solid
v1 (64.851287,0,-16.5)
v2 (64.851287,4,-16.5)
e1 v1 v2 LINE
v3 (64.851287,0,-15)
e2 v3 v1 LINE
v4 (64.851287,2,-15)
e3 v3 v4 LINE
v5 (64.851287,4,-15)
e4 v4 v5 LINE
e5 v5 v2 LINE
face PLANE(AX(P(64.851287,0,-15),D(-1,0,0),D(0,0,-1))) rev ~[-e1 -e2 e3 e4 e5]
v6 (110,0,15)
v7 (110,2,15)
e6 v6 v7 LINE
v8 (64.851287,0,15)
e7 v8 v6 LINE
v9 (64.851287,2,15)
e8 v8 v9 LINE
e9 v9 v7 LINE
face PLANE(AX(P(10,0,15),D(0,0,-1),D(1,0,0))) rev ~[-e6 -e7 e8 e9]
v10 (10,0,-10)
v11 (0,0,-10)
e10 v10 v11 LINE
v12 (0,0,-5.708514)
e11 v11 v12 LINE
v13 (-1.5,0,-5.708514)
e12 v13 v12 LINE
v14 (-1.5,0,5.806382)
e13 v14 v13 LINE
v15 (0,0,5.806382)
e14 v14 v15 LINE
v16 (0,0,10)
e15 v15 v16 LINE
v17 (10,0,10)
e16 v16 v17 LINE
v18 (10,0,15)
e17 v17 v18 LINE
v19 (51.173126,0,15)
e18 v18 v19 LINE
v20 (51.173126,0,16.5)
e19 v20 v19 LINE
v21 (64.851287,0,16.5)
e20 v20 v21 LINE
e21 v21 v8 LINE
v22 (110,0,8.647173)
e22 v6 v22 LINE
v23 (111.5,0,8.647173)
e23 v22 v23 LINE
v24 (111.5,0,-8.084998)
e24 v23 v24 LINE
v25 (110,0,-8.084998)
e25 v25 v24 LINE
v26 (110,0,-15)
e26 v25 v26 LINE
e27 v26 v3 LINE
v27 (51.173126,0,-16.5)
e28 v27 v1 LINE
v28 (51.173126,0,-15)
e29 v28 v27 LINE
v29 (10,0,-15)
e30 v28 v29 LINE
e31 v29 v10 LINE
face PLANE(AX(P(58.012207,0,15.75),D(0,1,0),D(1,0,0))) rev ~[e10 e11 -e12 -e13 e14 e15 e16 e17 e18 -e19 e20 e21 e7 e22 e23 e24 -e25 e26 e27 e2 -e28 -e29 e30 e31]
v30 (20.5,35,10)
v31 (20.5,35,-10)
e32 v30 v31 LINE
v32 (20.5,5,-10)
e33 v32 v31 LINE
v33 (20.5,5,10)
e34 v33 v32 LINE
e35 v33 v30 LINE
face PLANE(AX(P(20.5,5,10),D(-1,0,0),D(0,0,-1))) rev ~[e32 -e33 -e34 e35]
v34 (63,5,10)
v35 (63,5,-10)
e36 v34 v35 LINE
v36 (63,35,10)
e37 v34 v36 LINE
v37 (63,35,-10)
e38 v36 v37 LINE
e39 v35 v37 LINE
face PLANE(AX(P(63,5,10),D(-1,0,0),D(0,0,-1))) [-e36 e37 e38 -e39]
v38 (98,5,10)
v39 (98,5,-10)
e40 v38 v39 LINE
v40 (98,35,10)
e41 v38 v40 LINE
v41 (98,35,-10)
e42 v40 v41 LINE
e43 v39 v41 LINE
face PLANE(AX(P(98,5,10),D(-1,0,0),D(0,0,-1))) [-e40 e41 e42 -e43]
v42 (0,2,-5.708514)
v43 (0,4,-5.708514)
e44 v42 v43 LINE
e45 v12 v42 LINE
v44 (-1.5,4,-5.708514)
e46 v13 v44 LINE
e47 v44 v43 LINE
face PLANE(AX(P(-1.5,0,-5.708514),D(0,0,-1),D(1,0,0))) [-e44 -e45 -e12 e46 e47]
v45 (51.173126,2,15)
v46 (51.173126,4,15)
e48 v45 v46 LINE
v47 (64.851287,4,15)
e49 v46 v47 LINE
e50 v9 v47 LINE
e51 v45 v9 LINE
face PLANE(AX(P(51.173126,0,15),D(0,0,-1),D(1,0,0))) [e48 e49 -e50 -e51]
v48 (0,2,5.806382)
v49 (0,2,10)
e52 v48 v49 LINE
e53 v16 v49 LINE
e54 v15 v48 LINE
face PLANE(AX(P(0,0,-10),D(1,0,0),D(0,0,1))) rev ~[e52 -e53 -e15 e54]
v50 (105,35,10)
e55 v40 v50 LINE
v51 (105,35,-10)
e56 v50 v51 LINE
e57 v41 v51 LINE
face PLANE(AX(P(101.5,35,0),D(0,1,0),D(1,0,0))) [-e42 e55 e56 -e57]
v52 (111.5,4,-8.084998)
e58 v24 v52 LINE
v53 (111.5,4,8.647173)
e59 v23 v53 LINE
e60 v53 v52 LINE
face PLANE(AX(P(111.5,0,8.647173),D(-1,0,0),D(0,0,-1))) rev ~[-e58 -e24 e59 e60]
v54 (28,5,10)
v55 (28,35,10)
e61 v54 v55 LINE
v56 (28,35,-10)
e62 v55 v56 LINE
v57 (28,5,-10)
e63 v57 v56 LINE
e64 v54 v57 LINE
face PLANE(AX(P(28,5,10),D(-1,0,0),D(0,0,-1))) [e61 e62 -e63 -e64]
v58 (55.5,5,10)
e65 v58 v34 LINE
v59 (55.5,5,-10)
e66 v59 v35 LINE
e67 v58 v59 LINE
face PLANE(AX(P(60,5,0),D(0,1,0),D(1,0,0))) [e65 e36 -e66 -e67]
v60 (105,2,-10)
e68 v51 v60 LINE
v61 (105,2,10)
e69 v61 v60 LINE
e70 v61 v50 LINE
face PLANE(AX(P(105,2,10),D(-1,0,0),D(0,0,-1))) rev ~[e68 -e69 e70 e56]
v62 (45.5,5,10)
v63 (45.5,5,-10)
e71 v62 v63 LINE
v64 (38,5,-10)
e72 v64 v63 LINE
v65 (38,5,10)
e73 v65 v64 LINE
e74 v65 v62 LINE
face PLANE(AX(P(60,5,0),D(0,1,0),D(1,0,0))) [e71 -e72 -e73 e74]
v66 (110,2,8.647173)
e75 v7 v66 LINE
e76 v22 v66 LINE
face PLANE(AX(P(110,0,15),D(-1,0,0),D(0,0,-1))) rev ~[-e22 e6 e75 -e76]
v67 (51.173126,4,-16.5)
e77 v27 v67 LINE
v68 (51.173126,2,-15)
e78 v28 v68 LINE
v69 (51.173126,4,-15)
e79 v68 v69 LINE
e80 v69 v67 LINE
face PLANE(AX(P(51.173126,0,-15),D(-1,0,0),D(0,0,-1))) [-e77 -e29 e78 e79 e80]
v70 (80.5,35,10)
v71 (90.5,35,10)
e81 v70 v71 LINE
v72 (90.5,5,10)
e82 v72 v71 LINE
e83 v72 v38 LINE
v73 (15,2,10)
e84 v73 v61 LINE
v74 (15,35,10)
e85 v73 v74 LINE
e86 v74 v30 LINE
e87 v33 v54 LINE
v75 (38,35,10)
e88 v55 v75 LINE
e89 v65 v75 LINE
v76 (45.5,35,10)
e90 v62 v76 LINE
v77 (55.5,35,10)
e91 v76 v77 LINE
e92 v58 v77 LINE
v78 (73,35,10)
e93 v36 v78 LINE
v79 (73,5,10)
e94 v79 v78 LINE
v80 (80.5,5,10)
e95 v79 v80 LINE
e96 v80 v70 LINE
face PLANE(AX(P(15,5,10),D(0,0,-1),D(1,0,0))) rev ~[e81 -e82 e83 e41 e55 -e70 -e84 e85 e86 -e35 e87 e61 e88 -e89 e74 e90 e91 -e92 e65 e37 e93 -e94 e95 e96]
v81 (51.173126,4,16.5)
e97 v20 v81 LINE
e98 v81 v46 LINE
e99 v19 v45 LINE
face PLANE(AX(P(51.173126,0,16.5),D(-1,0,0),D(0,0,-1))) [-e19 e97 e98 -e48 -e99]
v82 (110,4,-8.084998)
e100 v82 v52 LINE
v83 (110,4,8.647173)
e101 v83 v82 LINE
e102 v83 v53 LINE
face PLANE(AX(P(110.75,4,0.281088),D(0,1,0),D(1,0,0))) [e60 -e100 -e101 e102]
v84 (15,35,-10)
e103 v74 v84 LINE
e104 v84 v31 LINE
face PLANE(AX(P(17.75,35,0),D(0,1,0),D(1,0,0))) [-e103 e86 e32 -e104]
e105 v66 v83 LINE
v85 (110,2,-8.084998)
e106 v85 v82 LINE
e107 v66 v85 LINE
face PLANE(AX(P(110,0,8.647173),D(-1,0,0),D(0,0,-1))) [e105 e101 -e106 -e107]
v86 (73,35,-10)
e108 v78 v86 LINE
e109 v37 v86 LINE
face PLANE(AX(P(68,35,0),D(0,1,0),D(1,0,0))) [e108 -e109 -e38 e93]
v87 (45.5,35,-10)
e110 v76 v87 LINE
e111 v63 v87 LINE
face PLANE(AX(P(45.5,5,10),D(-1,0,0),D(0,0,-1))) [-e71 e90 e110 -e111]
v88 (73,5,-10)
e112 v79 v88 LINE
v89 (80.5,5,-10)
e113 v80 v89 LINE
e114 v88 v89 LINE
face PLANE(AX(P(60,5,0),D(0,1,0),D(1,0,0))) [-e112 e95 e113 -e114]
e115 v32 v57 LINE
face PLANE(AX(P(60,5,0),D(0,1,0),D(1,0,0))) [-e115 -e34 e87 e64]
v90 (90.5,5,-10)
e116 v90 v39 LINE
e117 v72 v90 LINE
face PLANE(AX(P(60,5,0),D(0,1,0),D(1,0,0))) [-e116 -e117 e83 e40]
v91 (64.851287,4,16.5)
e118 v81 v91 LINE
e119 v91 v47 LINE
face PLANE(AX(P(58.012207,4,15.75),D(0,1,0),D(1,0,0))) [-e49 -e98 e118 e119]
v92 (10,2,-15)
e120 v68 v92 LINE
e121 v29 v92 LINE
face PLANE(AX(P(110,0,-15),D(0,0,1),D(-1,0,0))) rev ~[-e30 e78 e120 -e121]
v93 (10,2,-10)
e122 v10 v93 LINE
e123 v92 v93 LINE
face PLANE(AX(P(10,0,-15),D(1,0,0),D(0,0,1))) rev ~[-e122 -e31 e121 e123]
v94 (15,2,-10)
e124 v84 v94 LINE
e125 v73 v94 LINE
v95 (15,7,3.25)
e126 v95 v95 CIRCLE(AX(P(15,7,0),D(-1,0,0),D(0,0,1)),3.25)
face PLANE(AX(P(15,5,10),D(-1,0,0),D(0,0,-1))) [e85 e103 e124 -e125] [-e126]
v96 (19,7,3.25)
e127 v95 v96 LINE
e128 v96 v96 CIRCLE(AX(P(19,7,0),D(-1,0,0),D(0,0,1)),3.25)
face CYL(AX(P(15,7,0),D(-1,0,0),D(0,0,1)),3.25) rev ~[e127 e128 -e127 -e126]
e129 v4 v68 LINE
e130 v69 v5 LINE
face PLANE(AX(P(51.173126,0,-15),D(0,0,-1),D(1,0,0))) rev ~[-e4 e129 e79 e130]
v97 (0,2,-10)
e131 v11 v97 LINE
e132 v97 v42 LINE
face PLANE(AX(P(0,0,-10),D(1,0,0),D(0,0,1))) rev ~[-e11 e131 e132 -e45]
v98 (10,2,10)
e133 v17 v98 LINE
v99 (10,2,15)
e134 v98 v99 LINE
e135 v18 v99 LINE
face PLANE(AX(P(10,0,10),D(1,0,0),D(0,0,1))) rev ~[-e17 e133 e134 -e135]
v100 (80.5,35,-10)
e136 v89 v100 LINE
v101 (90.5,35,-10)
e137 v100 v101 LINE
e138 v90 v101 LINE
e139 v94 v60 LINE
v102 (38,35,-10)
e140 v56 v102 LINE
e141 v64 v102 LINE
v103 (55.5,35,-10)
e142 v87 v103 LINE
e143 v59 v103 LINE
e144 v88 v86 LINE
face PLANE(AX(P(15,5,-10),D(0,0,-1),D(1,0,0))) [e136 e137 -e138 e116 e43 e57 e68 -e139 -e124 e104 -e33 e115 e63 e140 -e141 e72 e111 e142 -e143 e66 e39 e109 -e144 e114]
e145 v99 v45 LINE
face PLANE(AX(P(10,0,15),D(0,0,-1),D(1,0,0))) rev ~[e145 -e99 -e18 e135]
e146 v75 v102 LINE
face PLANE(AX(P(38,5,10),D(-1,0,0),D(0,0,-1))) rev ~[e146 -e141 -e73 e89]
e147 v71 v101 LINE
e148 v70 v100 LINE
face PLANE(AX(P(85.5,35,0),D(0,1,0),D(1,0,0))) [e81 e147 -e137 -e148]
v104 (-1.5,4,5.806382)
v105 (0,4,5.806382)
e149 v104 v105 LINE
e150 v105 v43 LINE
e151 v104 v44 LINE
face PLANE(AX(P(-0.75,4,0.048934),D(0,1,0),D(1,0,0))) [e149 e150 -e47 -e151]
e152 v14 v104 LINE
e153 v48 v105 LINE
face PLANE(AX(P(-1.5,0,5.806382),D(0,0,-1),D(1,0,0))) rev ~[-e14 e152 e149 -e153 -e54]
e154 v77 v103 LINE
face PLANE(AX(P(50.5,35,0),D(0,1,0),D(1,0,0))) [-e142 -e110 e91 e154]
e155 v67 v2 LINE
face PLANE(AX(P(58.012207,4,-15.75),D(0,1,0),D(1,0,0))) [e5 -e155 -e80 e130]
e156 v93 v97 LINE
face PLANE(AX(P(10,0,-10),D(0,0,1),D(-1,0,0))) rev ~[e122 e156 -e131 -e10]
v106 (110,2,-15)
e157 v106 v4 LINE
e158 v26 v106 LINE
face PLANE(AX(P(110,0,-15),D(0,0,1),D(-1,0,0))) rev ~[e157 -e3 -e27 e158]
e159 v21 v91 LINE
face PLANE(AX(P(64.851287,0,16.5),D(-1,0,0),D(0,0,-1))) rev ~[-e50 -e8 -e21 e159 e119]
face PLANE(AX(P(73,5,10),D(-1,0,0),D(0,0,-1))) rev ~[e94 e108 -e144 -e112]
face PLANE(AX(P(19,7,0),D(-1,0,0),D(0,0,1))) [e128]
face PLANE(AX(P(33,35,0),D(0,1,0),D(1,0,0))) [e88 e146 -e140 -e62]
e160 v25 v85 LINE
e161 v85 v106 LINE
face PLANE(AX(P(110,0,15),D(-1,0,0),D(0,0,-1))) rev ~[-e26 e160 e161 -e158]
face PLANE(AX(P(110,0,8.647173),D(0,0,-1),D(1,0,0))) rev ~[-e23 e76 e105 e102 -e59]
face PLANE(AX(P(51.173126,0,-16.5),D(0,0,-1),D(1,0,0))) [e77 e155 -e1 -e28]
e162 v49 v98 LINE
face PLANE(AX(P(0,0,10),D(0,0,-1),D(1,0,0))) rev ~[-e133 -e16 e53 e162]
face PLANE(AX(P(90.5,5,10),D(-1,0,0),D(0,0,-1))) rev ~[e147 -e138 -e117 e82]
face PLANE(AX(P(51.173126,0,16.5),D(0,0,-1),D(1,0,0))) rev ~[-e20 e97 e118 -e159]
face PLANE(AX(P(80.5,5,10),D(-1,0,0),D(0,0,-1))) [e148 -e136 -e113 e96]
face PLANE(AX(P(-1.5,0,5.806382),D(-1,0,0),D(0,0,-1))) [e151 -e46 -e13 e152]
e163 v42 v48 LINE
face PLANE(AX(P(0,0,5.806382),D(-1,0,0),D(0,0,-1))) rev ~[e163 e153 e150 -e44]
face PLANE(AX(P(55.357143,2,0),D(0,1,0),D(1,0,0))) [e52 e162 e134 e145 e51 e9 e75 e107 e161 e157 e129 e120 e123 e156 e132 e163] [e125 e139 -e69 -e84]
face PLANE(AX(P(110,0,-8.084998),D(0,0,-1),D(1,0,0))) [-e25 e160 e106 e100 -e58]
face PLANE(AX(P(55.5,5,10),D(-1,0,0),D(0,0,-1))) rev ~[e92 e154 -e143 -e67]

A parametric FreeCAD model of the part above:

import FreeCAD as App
import Part
import Sketcher
from FreeCAD import Vector

doc = App.newDocument("Part")
body = doc.addObject("PartDesign::Body", "Body")

# Sketch on XZ plane
sketch1 = doc.addObject("Sketcher::SketchObject", "Sketch")
body.addObject(sketch1)
sketch1.AttachmentSupport = (doc.XZ_Plane, [""])
sketch1.MapMode = "FlatFace"
sketch1.addGeometry([
    Part.LineSegment(Vector(10, -15, 0), Vector(10, -10, 0)),  # 0
    Part.LineSegment(Vector(10, -10, 0), Vector(0, -10, 0)),  # 1
    Part.LineSegment(Vector(0, -10, 0), Vector(0, 10, 0)),  # 2
    Part.LineSegment(Vector(0, 10, 0), Vector(10, 10, 0)),  # 3
    Part.LineSegment(Vector(10, 10, 0), Vector(10, 15, 0)),  # 4
    Part.LineSegment(Vector(10, 15, 0), Vector(110, 15, 0)),  # 5
    Part.LineSegment(Vector(110, 15, 0), Vector(110, -15, 0)),  # 6
    Part.LineSegment(Vector(110, -15, 0), Vector(10, -15, 0)),  # 7
], False)
sketch1.addConstraint([
    Sketcher.Constraint("Coincident", 0, 2, 1, 1),
    Sketcher.Constraint("Coincident", 1, 2, 2, 1),
    Sketcher.Constraint("Coincident", 2, 2, 3, 1),
    Sketcher.Constraint("Coincident", 3, 2, 4, 1),
    Sketcher.Constraint("Coincident", 4, 2, 5, 1),
    Sketcher.Constraint("Coincident", 5, 2, 6, 1),
    Sketcher.Constraint("Coincident", 6, 2, 7, 1),
    Sketcher.Constraint("Coincident", 7, 2, 0, 1),
    Sketcher.Constraint("Vertical", 0),
    Sketcher.Constraint("Horizontal", 1),
    Sketcher.Constraint("Vertical", 2),
    Sketcher.Constraint("Horizontal", 3),
    Sketcher.Constraint("Vertical", 4),
    Sketcher.Constraint("Horizontal", 5),
    Sketcher.Constraint("Vertical", 6),
    Sketcher.Constraint("Horizontal", 7),
    Sketcher.Constraint("Symmetric", 1, 2, 2, 2, -1, 1),
    Sketcher.Constraint("Symmetric", 4, 2, 7, 2, -1),
    Sketcher.Constraint("DistanceX", 1, 2, 1, 1, 10.0),
    Sketcher.Constraint("DistanceX", 5, 1, 5, 2, 100.0),
    Sketcher.Constraint("DistanceY", 0, 1, 0, 2, 5.0),
    Sketcher.Constraint("DistanceY", 2, 1, 2, 2, 20.0),
])
pad1 = doc.addObject("PartDesign::Pad", "Pad")
body.addObject(pad1)
pad1.Profile = sketch1
pad1.Length = 2
pad1.Reversed = True

# Sketch on XZ plane
sketch2 = doc.addObject("Sketcher::SketchObject", "Sketch001")
body.addObject(sketch2)
sketch2.AttachmentSupport = (doc.XZ_Plane, [""])
sketch2.MapMode = "FlatFace"
sketch2.AttachmentOffset = App.Placement(Vector(0, 0, -2), App.Rotation())
sketch2.addGeometry([
    Part.LineSegment(Vector(15, -10, 0), Vector(15, 10, 0)),
    Part.LineSegment(Vector(15, 10, 0), Vector(105, 10, 0)),
    Part.LineSegment(Vector(105, 10, 0), Vector(105, -10, 0)),
    Part.LineSegment(Vector(105, -10, 0), Vector(15, -10, 0)),
], False)
sketch2.addConstraint([
    Sketcher.Constraint("Coincident", 0, 2, 1, 1),
    Sketcher.Constraint("Coincident", 1, 2, 2, 1),
    Sketcher.Constraint("Coincident", 2, 2, 3, 1),
    Sketcher.Constraint("Coincident", 3, 2, 0, 1),
    Sketcher.Constraint("Vertical", 0),
    Sketcher.Constraint("Horizontal", 1),
    Sketcher.Constraint("Vertical", 2),
    Sketcher.Constraint("Horizontal", 3),
    Sketcher.Constraint("DistanceX", 1, 1, 1, 2, 90.0),
    Sketcher.Constraint("DistanceY", 0, 1, 0, 2, 20.0),
    Sketcher.Constraint("DistanceX", -1, 1, 0, 2, 15.0),
    Sketcher.Constraint("DistanceY", -1, 1, 0, 2, 10.0),
])
pad2 = doc.addObject("PartDesign::Pad", "Pad001")
body.addObject(pad2)
pad2.Profile = sketch2
pad2.Length = 3
pad2.Reversed = True

# Sketch on XZ plane
sketch3 = doc.addObject("Sketcher::SketchObject", "Sketch002")
body.addObject(sketch3)
sketch3.AttachmentSupport = (doc.XZ_Plane, [""])
sketch3.MapMode = "FlatFace"
sketch3.AttachmentOffset = App.Placement(Vector(0, 0, -5), App.Rotation())
sketch3.addGeometry([
    Part.LineSegment(Vector(80, -10, 0), Vector(80, 10, 0)),  # 0
    Part.LineSegment(Vector(80, 10, 0), Vector(90, 10, 0)),  # 1
    Part.LineSegment(Vector(90, 10, 0), Vector(90, -10, 0)),  # 2
    Part.LineSegment(Vector(90, -10, 0), Vector(80, -10, 0)),  # 3
    Part.LineSegment(Vector(63, -10, 0), Vector(63, 10, 0)),  # 4
    Part.LineSegment(Vector(63, 10, 0), Vector(73, 10, 0)),  # 5
    Part.LineSegment(Vector(73, 10, 0), Vector(73, -10, 0)),  # 6
    Part.LineSegment(Vector(73, -10, 0), Vector(63, -10, 0)),  # 7
    Part.LineSegment(Vector(46, -10, 0), Vector(46, 10, 0)),  # 8
    Part.LineSegment(Vector(46, 10, 0), Vector(56, 10, 0)),  # 9
    Part.LineSegment(Vector(56, 10, 0), Vector(56, -10, 0)),  # 10
    Part.LineSegment(Vector(56, -10, 0), Vector(46, -10, 0)),  # 11
    Part.LineSegment(Vector(28, -10, 0), Vector(28, 10, 0)),  # 12
    Part.LineSegment(Vector(28, 10, 0), Vector(38, 10, 0)),  # 13
    Part.LineSegment(Vector(38, 10, 0), Vector(38, -10, 0)),  # 14
    Part.LineSegment(Vector(38, -10, 0), Vector(28, -10, 0)),  # 15
    Part.LineSegment(Vector(15, -10, 0), Vector(15, 10, 0)),  # 16
    Part.LineSegment(Vector(15, 10, 0), Vector(20, 10, 0)),  # 17
    Part.LineSegment(Vector(20, 10, 0), Vector(20, -10, 0)),  # 18
    Part.LineSegment(Vector(20, -10, 0), Vector(15, -10, 0)),  # 19
    Part.LineSegment(Vector(98, -10, 0), Vector(98, 10, 0)),  # 20
    Part.LineSegment(Vector(98, 10, 0), Vector(105, 10, 0)),  # 21
    Part.LineSegment(Vector(105, 10, 0), Vector(105, -10, 0)),  # 22
    Part.LineSegment(Vector(105, -10, 0), Vector(98, -10, 0)),  # 23
], False)
sketch3.addConstraint([
    Sketcher.Constraint("Coincident", 0, 2, 1, 1),
    Sketcher.Constraint("Coincident", 1, 2, 2, 1),
    Sketcher.Constraint("Coincident", 2, 2, 3, 1),
    Sketcher.Constraint("Coincident", 3, 2, 0, 1),
    Sketcher.Constraint("Coincident", 4, 2, 5, 1),
    Sketcher.Constraint("Coincident", 5, 2, 6, 1),
    Sketcher.Constraint("Coincident", 6, 2, 7, 1),
    Sketcher.Constraint("Coincident", 7, 2, 4, 1),
    Sketcher.Constraint("Coincident", 8, 2, 9, 1),
    Sketcher.Constraint("Coincident", 9, 2, 10, 1),
    Sketcher.Constraint("Coincident", 10, 2, 11, 1),
    Sketcher.Constraint("Coincident", 11, 2, 8, 1),
    Sketcher.Constraint("Coincident", 12, 2, 13, 1),
    Sketcher.Constraint("Coincident", 13, 2, 14, 1),
    Sketcher.Constraint("Coincident", 14, 2, 15, 1),
    Sketcher.Constraint("Coincident", 15, 2, 12, 1),
    Sketcher.Constraint("Coincident", 16, 2, 17, 1),
    Sketcher.Constraint("Coincident", 17, 2, 18, 1),
    Sketcher.Constraint("Coincident", 18, 2, 19, 1),
    Sketcher.Constraint("Coincident", 19, 2, 16, 1),
    Sketcher.Constraint("Coincident", 20, 2, 21, 1),
    Sketcher.Constraint("Coincident", 21, 2, 22, 1),
    Sketcher.Constraint("Coincident", 22, 2, 23, 1),
    Sketcher.Constraint("Coincident", 23, 2, 20, 1),
    Sketcher.Constraint("Vertical", 0),
    Sketcher.Constraint("Horizontal", 1),
    Sketcher.Constraint("Vertical", 2),
    Sketcher.Constraint("Horizontal", 3),
    Sketcher.Constraint("Vertical", 4),
    Sketcher.Constraint("Horizontal", 5),
    Sketcher.Constraint("Vertical", 6),
    Sketcher.Constraint("Horizontal", 7),
    Sketcher.Constraint("Vertical", 8),
    Sketcher.Constraint("Horizontal", 9),
    Sketcher.Constraint("Vertical", 10),
    Sketcher.Constraint("Horizontal", 11),
    Sketcher.Constraint("Vertical", 12),
    Sketcher.Constraint("Horizontal", 13),
    Sketcher.Constraint("Vertical", 14),
    Sketcher.Constraint("Horizontal", 15),
    Sketcher.Constraint("Vertical", 16),
    Sketcher.Constraint("Horizontal", 17),
    Sketcher.Constraint("Vertical", 18),
    Sketcher.Constraint("Horizontal", 19),
    Sketcher.Constraint("Vertical", 20),
    Sketcher.Constraint("Horizontal", 21),
    Sketcher.Constraint("Vertical", 22),
    Sketcher.Constraint("Horizontal", 23),
    Sketcher.Constraint("Horizontal", 1, 2, 4, 2),
    Sketcher.Constraint("Horizontal", 3, 2, 6, 2),
    Sketcher.Constraint("Horizontal", 5, 2, 8, 2),
    Sketcher.Constraint("Horizontal", 7, 2, 10, 2),
    Sketcher.Constraint("Horizontal", 9, 2, 12, 2),
    Sketcher.Constraint("Horizontal", 11, 2, 14, 2),
    Sketcher.Constraint("Horizontal", 13, 2, 16, 2),
    Sketcher.Constraint("Horizontal", 15, 2, 18, 2),
    Sketcher.Constraint("Horizontal", 17, 2, 20, 2),
    Sketcher.Constraint("Horizontal", 19, 2, 22, 2),
    Sketcher.Constraint("Equal", 3, 5),
    Sketcher.Constraint("Equal", 7, 9),
    Sketcher.Constraint("Equal", 11, 13),
    Sketcher.Constraint("DistanceX", 1, 1, 1, 2, 10.0),
    Sketcher.Constraint("DistanceX", 21, 1, 21, 2, 7.0),
    Sketcher.Constraint("DistanceY", 0, 1, 0, 2, 20.0),
    Sketcher.Constraint("DistanceX", 17, 1, 17, 2, 5.5),
    Sketcher.Constraint("DistanceY", -1, 1, 0, 2, 10.0),
    Sketcher.Constraint("DistanceX", -1, 1, 4, 2, 63.0),
    Sketcher.Constraint("DistanceX", -1, 1, 12, 2, 28.0),
    Sketcher.Constraint("DistanceX", -1, 1, 16, 2, 15.0),
    Sketcher.Constraint("DistanceX", -1, 1, 20, 2, 98.0),
    Sketcher.Constraint("DistanceX", 8, 2, 0, 2, 35.0),
    Sketcher.Constraint("DistanceX", 17, 2, 8, 2, 25.0),
])
pad3 = doc.addObject("PartDesign::Pad", "Pad002")
body.addObject(pad3)
pad3.Profile = sketch3
pad3.Length = 30
pad3.Reversed = True

# Sketch on YZ plane
sketch4 = doc.addObject("Sketcher::SketchObject", "Sketch003")
body.addObject(sketch4)
sketch4.AttachmentSupport = (doc.YZ_Plane, [""])
sketch4.MapMode = "FlatFace"
sketch4.AttachmentOffset = App.Placement(Vector(0, 0, 15), App.Rotation())
sketch4.addGeometry(Part.Circle(Vector(7, 0, 0), Vector(0, 0, 1), 3.2), False)
sketch4.addConstraint([
    Sketcher.Constraint("PointOnObject", 0, 3, -1),
    Sketcher.Constraint("Diameter", 0, 6.5),
    Sketcher.Constraint("DistanceX", -1, 1, 0, 3, 7.0),
])
pocket1 = doc.addObject("PartDesign::Pocket", "Pocket")
body.addObject(pocket1)
pocket1.Profile = sketch4
pocket1.Length = 4
pocket1.Reversed = True

# Sketch on XZ plane
sketch5 = doc.addObject("Sketcher::SketchObject", "Sketch004")
body.addObject(sketch5)
sketch5.AttachmentSupport = (doc.XZ_Plane, [""])
sketch5.MapMode = "FlatFace"
sketch5.addGeometry([
    Part.LineSegment(Vector(51.2, 15, 0), Vector(51.2, 16.5, 0)),  # 0
    Part.LineSegment(Vector(51.2, 16.5, 0), Vector(64.9, 16.5, 0)),  # 1
    Part.LineSegment(Vector(64.9, 16.5, 0), Vector(64.9, 15, 0)),  # 2
    Part.LineSegment(Vector(64.9, 15, 0), Vector(51.2, 15, 0)),  # 3
    Part.LineSegment(Vector(51.2, -16.5, 0), Vector(51.2, -15, 0)),  # 4
    Part.LineSegment(Vector(51.2, -15, 0), Vector(64.9, -15, 0)),  # 5
    Part.LineSegment(Vector(64.9, -15, 0), Vector(64.9, -16.5, 0)),  # 6
    Part.LineSegment(Vector(64.9, -16.5, 0), Vector(51.2, -16.5, 0)),  # 7
    Part.LineSegment(Vector(110, -8.1, 0), Vector(110, 8.6, 0)),  # 8
    Part.LineSegment(Vector(110, 8.6, 0), Vector(111.5, 8.6, 0)),  # 9
    Part.LineSegment(Vector(111.5, 8.6, 0), Vector(111.5, -8.1, 0)),  # 10
    Part.LineSegment(Vector(111.5, -8.1, 0), Vector(110, -8.1, 0)),  # 11
    Part.LineSegment(Vector(-1.5, -5.7, 0), Vector(-1.5, 5.8, 0)),  # 12
    Part.LineSegment(Vector(-1.5, 5.8, 0), Vector(0, 5.8, 0)),  # 13
    Part.LineSegment(Vector(0, 5.8, 0), Vector(0, -5.7, 0)),  # 14
    Part.LineSegment(Vector(0, -5.7, 0), Vector(-1.5, -5.7, 0)),  # 15
], False)
sketch5.addConstraint([
    Sketcher.Constraint("Coincident", 0, 2, 1, 1),
    Sketcher.Constraint("Coincident", 1, 2, 2, 1),
    Sketcher.Constraint("Coincident", 2, 2, 3, 1),
    Sketcher.Constraint("Coincident", 3, 2, 0, 1),
    Sketcher.Constraint("Coincident", 4, 2, 5, 1),
    Sketcher.Constraint("Coincident", 5, 2, 6, 1),
    Sketcher.Constraint("Coincident", 6, 2, 7, 1),
    Sketcher.Constraint("Coincident", 7, 2, 4, 1),
    Sketcher.Constraint("Coincident", 8, 2, 9, 1),
    Sketcher.Constraint("Coincident", 9, 2, 10, 1),
    Sketcher.Constraint("Coincident", 10, 2, 11, 1),
    Sketcher.Constraint("Coincident", 11, 2, 8, 1),
    Sketcher.Constraint("Coincident", 12, 2, 13, 1),
    Sketcher.Constraint("Coincident", 13, 2, 14, 1),
    Sketcher.Constraint("Coincident", 14, 2, 15, 1),
    Sketcher.Constraint("Coincident", 15, 2, 12, 1),
    Sketcher.Constraint("Vertical", 0),
    Sketcher.Constraint("Horizontal", 1),
    Sketcher.Constraint("Vertical", 2),
    Sketcher.Constraint("Horizontal", 3),
    Sketcher.Constraint("Vertical", 4),
    Sketcher.Constraint("Horizontal", 5),
    Sketcher.Constraint("Vertical", 6),
    Sketcher.Constraint("Horizontal", 7),
    Sketcher.Constraint("Vertical", 8),
    Sketcher.Constraint("Horizontal", 9),
    Sketcher.Constraint("Vertical", 10),
    Sketcher.Constraint("Horizontal", 11),
    Sketcher.Constraint("Vertical", 12),
    Sketcher.Constraint("Horizontal", 13),
    Sketcher.Constraint("Vertical", 14),
    Sketcher.Constraint("Horizontal", 15),
    Sketcher.Constraint("Symmetric", 3, 2, 4, 2, -1),
    Sketcher.Constraint("Symmetric", 1, 2, 6, 2, -1),
    Sketcher.Constraint("PointOnObject", 13, 2, -2),
    Sketcher.Constraint("Equal", 11, 13),
    Sketcher.Constraint("Equal", 15, 0),
    Sketcher.Constraint("DistanceX", 9, 1, 9, 2, 1.5),
    Sketcher.Constraint("DistanceY", -1, 1, 2, 2, 15.0),
    Sketcher.Constraint("DistanceX", -1, 1, 8, 2, 110.0),
    Sketcher.Constraint("DistanceX", 1, 1, 1, 2, 13.678162),
    Sketcher.Constraint("DistanceY", 8, 1, 8, 2, 16.732171),
    Sketcher.Constraint("DistanceY", 12, 1, 12, 2, 11.514896),
    Sketcher.Constraint("DistanceX", -1, 1, 0, 2, 51.173126),
    Sketcher.Constraint("DistanceY", -1, 1, 8, 2, 8.647173),
    Sketcher.Constraint("DistanceY", -1, 1, 12, 2, 5.806382),
])
pad4 = doc.addObject("PartDesign::Pad", "Pad003")
body.addObject(pad4)
pad4.Profile = sketch5
pad4.Length = 4
pad4.Reversed = True

doc.recompute()
